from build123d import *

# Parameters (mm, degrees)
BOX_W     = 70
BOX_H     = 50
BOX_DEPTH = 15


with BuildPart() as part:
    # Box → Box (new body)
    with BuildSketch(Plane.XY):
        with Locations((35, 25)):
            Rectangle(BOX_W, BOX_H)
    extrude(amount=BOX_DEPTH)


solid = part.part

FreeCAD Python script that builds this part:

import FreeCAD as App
import Part
import Sketcher

V = App.Vector


def add_polygon(sketch, points):
    """Adds a closed chain of lines whose ends are joined by coincident constraints."""
    first, n = sketch.GeometryCount, len(points)
    for a, b in zip(points, points[1:] + points[:1]):
        sketch.addGeometry(Part.LineSegment(App.Vector(*a, 0), App.Vector(*b, 0)), False)
    for i in range(n):
        sketch.addConstraint(Sketcher.Constraint("Coincident", first + i, 2, first + (i + 1) % n, 1))

doc = App.newDocument("Part")
body = doc.addObject("PartDesign::Body", "Body")

sketch1 = doc.addObject("Sketcher::SketchObject", "Sketch")
body.addObject(sketch1)
sketch1.AttachmentSupport = (doc.XY_Plane, [""])
sketch1.MapMode = "FlatFace"
add_polygon(sketch1, [(0, 50), (0, 0), (70, 0), (70, 50)])
sketch1.addConstraint([
    Sketcher.Constraint("Vertical", 0),
    Sketcher.Constraint("Horizontal", 1),
    Sketcher.Constraint("Vertical", 2),
    Sketcher.Constraint("Horizontal", 3),
    Sketcher.Constraint("Coincident", 0, 2, -1, 1),
    Sketcher.Constraint("DistanceX", 1, 1, 1, 2, 70.0),
    Sketcher.Constraint("DistanceY", 0, 2, 0, 1, 50.0),
])
pad1 = doc.addObject("PartDesign::Pad", "Pad")
body.addObject(pad1)
pad1.Profile = sketch1
pad1.Length = 15

doc.recompute()
